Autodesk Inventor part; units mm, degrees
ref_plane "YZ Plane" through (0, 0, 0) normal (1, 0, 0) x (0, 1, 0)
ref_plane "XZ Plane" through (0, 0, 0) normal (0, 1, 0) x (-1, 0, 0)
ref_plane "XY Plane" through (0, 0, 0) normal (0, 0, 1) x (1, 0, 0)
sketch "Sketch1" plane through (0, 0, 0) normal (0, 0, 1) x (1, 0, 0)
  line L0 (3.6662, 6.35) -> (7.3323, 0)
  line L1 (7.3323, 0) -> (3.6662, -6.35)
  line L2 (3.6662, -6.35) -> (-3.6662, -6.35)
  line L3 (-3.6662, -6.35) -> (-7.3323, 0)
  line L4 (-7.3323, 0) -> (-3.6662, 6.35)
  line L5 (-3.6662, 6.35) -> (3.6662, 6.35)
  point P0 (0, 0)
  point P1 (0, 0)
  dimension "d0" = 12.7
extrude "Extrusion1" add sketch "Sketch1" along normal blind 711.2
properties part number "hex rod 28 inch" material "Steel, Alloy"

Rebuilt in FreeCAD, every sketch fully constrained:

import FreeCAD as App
import Part
import Sketcher
from FreeCAD import Vector
Q = App.Units.Quantity


def add_polygon(sketch, points):
    """Adds a closed chain of lines whose ends are joined by coincident constraints."""
    first, n = sketch.GeometryCount, len(points)
    for a, b in zip(points, points[1:] + points[:1]):
        sketch.addGeometry(Part.LineSegment(App.Vector(*a, 0), App.Vector(*b, 0)), False)
    for i in range(n):
        sketch.addConstraint(Sketcher.Constraint("Coincident", first + i, 2, first + (i + 1) % n, 1))

doc = App.newDocument("Part")
params = doc.addObject("Spreadsheet::Sheet", "Params")
for row, (alias, value) in enumerate([
    ("pad1_length", "28 in"),
], start=1):
    params.set(f"A{row}", alias)
    params.set(f"B{row}", "=" + value)
    params.setAlias(f"B{row}", alias)

body = doc.addObject("PartDesign::Body", "Body")

sketch1 = doc.addObject("Sketcher::SketchObject", "Sketch")
body.addObject(sketch1)
sketch1.AttachmentSupport = (doc.XY_Plane, [""])
sketch1.MapMode = "FlatFace"
add_polygon(sketch1, [(7, 0), (4, 6), (-4, 6), (-7, 0), (-4, -6), (4, -6)])
sketch1.addConstraint([
    Sketcher.Constraint("Horizontal", 1),
    Sketcher.Constraint("Horizontal", 4),
    Sketcher.Constraint("Symmetric", 0, 2, 3, 2, -1, 1),
    Sketcher.Constraint("Symmetric", 2, 2, 5, 2, -1, 1),
    Sketcher.Constraint("PointOnObject", 2, 2, -1),
    Sketcher.Constraint("Parallel", 2, 5),
    Sketcher.Constraint("Vertical", 1, 2, 3, 2),
    Sketcher.Constraint("DistanceY", 3, 2, 1, 2, Q("0.5 in")),
    Sketcher.Constraint("Angle", 0, Q("119.9995 deg")),
    Sketcher.Constraint("DistanceX", 2, 2, 0, 2, Q("0.433 in")),
])
pad1 = doc.addObject("PartDesign::Pad", "Pad")
body.addObject(pad1)
pad1.Profile = sketch1
pad1.setExpression("Length", "Params.pad1_length")

doc.recompute()
